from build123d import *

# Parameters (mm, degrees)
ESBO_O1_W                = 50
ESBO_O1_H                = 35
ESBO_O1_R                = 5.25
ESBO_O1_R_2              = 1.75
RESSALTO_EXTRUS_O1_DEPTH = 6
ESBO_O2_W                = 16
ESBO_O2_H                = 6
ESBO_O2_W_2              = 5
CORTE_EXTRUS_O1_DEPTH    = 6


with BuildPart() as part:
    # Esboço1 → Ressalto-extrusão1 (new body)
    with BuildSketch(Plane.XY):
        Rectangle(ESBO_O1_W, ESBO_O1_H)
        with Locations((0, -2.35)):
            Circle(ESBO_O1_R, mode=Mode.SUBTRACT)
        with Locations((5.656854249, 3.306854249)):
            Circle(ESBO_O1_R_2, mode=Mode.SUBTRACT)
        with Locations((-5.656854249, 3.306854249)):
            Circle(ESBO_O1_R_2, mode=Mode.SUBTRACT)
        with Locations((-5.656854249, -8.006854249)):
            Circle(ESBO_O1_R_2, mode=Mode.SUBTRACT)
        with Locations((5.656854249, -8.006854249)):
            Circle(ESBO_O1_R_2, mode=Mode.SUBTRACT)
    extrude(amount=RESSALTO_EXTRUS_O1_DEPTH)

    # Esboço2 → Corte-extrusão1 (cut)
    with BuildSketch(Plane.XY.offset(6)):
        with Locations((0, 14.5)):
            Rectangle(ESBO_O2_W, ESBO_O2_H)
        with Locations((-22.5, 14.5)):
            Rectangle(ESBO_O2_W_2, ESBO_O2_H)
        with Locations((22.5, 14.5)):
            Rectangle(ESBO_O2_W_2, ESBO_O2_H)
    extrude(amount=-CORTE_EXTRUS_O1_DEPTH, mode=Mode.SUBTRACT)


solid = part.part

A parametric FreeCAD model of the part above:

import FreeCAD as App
import Part
import Sketcher

V = App.Vector


def add_polygon(sketch, points):
    """Adds a closed chain of lines whose ends are joined by coincident constraints."""
    first, n = sketch.GeometryCount, len(points)
    for a, b in zip(points, points[1:] + points[:1]):
        sketch.addGeometry(Part.LineSegment(App.Vector(*a, 0), App.Vector(*b, 0)), False)
    for i in range(n):
        sketch.addConstraint(Sketcher.Constraint("Coincident", first + i, 2, first + (i + 1) % n, 1))

doc = App.newDocument("Part")
body = doc.addObject("PartDesign::Body", "Body")

# Sketch on XY plane
sketch1 = body.newObject("Sketcher::SketchObject", "Sketch")
sketch1.AttachmentSupport = (doc.getObject("XY_Plane"), [""])
sketch1.MapMode = "FlatFace"
add_polygon(sketch1, [(-25, 17.5), (-25, -17.5), (25, -17.5), (25, 17.5)])  # lines 0-3
sketch1.addGeometry(Part.Circle(V(-5.7, -8, 0), V(0, 0, 1), 1.8), False)  # 4
sketch1.addGeometry(Part.Circle(V(0, -2.4, 0), V(0, 0, 1), 5.2), False)  # 5
sketch1.addGeometry(Part.Circle(V(5.7, -8, 0), V(0, 0, 1), 1.8), False)  # 6
sketch1.addGeometry(Part.Circle(V(-5.7, 3.3, 0), V(0, 0, 1), 1.8), False)  # 7
sketch1.addGeometry(Part.Circle(V(5.7, 3.3, 0), V(0, 0, 1), 1.8), False)  # 8
sketch1.addConstraint(Sketcher.Constraint("Vertical", 0))
sketch1.addConstraint(Sketcher.Constraint("Horizontal", 1))
sketch1.addConstraint(Sketcher.Constraint("Vertical", 2))
sketch1.addConstraint(Sketcher.Constraint("Horizontal", 3))
sketch1.addConstraint(Sketcher.Constraint("Equal", 4, 6))
sketch1.addConstraint(Sketcher.Constraint("Equal", 6, 7))
sketch1.addConstraint(Sketcher.Constraint("Equal", 7, 8))
sketch1.addConstraint(Sketcher.Constraint("Symmetric", 0, 2, 2, 2, -1, 1))
sketch1.addConstraint(Sketcher.Constraint("Symmetric", 4, 3, 6, 3, -2))
sketch1.addConstraint(Sketcher.Constraint("Symmetric", 7, 3, 8, 3, -2))
sketch1.addConstraint(Sketcher.Constraint("PointOnObject", 5, 3, -2))
sketch1.addConstraint(Sketcher.Constraint("Vertical", 4, 3, 7, 3))
sketch1.addConstraint(Sketcher.Constraint("Diameter", 4, 3.5))
sketch1.addConstraint(Sketcher.Constraint("Diameter", 5, 10.5))
sketch1.addConstraint(Sketcher.Constraint("DistanceX", 1, 1, 1, 2, 50.0))
sketch1.addConstraint(Sketcher.Constraint("DistanceY", 0, 2, 0, 1, 35.0))
sketch1.addConstraint(Sketcher.Constraint("DistanceY", 5, 3, -1, 1, 2.35))
sketch1.addConstraint(Sketcher.Constraint("DistanceX", 4, 3, 6, 3, 11.313708))
sketch1.addConstraint(Sketcher.Constraint("DistanceY", 4, 3, 7, 3, 11.313708))
sketch1.addConstraint(Sketcher.Constraint("DistanceY", 4, 3, -1, 1, 8.006854))
pad1 = body.newObject("PartDesign::Pad", "Pad")
pad1.Profile = sketch1
pad1.Length = 6

# Sketch on XY plane
sketch2 = body.newObject("Sketcher::SketchObject", "Sketch001")
sketch2.AttachmentSupport = (doc.getObject("XY_Plane"), [""])
sketch2.MapMode = "FlatFace"
sketch2.AttachmentOffset = App.Placement(V(0, 0, 6), App.Rotation())
add_polygon(sketch2, [(-8, 18), (-8, 12), (8, 12), (8, 18)])  # lines 0-3
add_polygon(sketch2, [(-25, 18), (-25, 12), (-20, 12), (-20, 18)])  # lines 4-7
add_polygon(sketch2, [(20, 18), (20, 12), (25, 12), (25, 18)])  # lines 8-11
sketch2.addConstraint(Sketcher.Constraint("Vertical", 0))
sketch2.addConstraint(Sketcher.Constraint("Horizontal", 1))
sketch2.addConstraint(Sketcher.Constraint("Vertical", 2))
sketch2.addConstraint(Sketcher.Constraint("Horizontal", 3))
sketch2.addConstraint(Sketcher.Constraint("Vertical", 4))
sketch2.addConstraint(Sketcher.Constraint("Horizontal", 5))
sketch2.addConstraint(Sketcher.Constraint("Vertical", 6))
sketch2.addConstraint(Sketcher.Constraint("Horizontal", 7))
sketch2.addConstraint(Sketcher.Constraint("Vertical", 8))
sketch2.addConstraint(Sketcher.Constraint("Horizontal", 9))
sketch2.addConstraint(Sketcher.Constraint("Vertical", 10))
sketch2.addConstraint(Sketcher.Constraint("Horizontal", 11))
sketch2.addConstraint(Sketcher.Constraint("Symmetric", 5, 2, 8, 2, -2))
sketch2.addConstraint(Sketcher.Constraint("Symmetric", 7, 2, 10, 2, -2))
sketch2.addConstraint(Sketcher.Constraint("Horizontal", 1, 2, 4, 2))
sketch2.addConstraint(Sketcher.Constraint("Horizontal", 3, 2, 6, 2))
sketch2.addConstraint(Sketcher.Constraint("DistanceX", 1, 1, 1, 2, 16.0))
sketch2.addConstraint(Sketcher.Constraint("DistanceX", 5, 1, 5, 2, 5.0))
sketch2.addConstraint(Sketcher.Constraint("DistanceY", 0, 2, 0, 1, 6.0))
sketch2.addConstraint(Sketcher.Constraint("DistanceX", 0, 2, -1, 1, 8.0))
sketch2.addConstraint(Sketcher.Constraint("DistanceX", 4, 2, -1, 1, 25.0))
sketch2.addConstraint(Sketcher.Constraint("DistanceY", -1, 1, 0, 2, 11.5))
pocket1 = body.newObject("PartDesign::Pocket", "Pocket")
pocket1.Profile = sketch2
pocket1.Length = 6

doc.recompute()
